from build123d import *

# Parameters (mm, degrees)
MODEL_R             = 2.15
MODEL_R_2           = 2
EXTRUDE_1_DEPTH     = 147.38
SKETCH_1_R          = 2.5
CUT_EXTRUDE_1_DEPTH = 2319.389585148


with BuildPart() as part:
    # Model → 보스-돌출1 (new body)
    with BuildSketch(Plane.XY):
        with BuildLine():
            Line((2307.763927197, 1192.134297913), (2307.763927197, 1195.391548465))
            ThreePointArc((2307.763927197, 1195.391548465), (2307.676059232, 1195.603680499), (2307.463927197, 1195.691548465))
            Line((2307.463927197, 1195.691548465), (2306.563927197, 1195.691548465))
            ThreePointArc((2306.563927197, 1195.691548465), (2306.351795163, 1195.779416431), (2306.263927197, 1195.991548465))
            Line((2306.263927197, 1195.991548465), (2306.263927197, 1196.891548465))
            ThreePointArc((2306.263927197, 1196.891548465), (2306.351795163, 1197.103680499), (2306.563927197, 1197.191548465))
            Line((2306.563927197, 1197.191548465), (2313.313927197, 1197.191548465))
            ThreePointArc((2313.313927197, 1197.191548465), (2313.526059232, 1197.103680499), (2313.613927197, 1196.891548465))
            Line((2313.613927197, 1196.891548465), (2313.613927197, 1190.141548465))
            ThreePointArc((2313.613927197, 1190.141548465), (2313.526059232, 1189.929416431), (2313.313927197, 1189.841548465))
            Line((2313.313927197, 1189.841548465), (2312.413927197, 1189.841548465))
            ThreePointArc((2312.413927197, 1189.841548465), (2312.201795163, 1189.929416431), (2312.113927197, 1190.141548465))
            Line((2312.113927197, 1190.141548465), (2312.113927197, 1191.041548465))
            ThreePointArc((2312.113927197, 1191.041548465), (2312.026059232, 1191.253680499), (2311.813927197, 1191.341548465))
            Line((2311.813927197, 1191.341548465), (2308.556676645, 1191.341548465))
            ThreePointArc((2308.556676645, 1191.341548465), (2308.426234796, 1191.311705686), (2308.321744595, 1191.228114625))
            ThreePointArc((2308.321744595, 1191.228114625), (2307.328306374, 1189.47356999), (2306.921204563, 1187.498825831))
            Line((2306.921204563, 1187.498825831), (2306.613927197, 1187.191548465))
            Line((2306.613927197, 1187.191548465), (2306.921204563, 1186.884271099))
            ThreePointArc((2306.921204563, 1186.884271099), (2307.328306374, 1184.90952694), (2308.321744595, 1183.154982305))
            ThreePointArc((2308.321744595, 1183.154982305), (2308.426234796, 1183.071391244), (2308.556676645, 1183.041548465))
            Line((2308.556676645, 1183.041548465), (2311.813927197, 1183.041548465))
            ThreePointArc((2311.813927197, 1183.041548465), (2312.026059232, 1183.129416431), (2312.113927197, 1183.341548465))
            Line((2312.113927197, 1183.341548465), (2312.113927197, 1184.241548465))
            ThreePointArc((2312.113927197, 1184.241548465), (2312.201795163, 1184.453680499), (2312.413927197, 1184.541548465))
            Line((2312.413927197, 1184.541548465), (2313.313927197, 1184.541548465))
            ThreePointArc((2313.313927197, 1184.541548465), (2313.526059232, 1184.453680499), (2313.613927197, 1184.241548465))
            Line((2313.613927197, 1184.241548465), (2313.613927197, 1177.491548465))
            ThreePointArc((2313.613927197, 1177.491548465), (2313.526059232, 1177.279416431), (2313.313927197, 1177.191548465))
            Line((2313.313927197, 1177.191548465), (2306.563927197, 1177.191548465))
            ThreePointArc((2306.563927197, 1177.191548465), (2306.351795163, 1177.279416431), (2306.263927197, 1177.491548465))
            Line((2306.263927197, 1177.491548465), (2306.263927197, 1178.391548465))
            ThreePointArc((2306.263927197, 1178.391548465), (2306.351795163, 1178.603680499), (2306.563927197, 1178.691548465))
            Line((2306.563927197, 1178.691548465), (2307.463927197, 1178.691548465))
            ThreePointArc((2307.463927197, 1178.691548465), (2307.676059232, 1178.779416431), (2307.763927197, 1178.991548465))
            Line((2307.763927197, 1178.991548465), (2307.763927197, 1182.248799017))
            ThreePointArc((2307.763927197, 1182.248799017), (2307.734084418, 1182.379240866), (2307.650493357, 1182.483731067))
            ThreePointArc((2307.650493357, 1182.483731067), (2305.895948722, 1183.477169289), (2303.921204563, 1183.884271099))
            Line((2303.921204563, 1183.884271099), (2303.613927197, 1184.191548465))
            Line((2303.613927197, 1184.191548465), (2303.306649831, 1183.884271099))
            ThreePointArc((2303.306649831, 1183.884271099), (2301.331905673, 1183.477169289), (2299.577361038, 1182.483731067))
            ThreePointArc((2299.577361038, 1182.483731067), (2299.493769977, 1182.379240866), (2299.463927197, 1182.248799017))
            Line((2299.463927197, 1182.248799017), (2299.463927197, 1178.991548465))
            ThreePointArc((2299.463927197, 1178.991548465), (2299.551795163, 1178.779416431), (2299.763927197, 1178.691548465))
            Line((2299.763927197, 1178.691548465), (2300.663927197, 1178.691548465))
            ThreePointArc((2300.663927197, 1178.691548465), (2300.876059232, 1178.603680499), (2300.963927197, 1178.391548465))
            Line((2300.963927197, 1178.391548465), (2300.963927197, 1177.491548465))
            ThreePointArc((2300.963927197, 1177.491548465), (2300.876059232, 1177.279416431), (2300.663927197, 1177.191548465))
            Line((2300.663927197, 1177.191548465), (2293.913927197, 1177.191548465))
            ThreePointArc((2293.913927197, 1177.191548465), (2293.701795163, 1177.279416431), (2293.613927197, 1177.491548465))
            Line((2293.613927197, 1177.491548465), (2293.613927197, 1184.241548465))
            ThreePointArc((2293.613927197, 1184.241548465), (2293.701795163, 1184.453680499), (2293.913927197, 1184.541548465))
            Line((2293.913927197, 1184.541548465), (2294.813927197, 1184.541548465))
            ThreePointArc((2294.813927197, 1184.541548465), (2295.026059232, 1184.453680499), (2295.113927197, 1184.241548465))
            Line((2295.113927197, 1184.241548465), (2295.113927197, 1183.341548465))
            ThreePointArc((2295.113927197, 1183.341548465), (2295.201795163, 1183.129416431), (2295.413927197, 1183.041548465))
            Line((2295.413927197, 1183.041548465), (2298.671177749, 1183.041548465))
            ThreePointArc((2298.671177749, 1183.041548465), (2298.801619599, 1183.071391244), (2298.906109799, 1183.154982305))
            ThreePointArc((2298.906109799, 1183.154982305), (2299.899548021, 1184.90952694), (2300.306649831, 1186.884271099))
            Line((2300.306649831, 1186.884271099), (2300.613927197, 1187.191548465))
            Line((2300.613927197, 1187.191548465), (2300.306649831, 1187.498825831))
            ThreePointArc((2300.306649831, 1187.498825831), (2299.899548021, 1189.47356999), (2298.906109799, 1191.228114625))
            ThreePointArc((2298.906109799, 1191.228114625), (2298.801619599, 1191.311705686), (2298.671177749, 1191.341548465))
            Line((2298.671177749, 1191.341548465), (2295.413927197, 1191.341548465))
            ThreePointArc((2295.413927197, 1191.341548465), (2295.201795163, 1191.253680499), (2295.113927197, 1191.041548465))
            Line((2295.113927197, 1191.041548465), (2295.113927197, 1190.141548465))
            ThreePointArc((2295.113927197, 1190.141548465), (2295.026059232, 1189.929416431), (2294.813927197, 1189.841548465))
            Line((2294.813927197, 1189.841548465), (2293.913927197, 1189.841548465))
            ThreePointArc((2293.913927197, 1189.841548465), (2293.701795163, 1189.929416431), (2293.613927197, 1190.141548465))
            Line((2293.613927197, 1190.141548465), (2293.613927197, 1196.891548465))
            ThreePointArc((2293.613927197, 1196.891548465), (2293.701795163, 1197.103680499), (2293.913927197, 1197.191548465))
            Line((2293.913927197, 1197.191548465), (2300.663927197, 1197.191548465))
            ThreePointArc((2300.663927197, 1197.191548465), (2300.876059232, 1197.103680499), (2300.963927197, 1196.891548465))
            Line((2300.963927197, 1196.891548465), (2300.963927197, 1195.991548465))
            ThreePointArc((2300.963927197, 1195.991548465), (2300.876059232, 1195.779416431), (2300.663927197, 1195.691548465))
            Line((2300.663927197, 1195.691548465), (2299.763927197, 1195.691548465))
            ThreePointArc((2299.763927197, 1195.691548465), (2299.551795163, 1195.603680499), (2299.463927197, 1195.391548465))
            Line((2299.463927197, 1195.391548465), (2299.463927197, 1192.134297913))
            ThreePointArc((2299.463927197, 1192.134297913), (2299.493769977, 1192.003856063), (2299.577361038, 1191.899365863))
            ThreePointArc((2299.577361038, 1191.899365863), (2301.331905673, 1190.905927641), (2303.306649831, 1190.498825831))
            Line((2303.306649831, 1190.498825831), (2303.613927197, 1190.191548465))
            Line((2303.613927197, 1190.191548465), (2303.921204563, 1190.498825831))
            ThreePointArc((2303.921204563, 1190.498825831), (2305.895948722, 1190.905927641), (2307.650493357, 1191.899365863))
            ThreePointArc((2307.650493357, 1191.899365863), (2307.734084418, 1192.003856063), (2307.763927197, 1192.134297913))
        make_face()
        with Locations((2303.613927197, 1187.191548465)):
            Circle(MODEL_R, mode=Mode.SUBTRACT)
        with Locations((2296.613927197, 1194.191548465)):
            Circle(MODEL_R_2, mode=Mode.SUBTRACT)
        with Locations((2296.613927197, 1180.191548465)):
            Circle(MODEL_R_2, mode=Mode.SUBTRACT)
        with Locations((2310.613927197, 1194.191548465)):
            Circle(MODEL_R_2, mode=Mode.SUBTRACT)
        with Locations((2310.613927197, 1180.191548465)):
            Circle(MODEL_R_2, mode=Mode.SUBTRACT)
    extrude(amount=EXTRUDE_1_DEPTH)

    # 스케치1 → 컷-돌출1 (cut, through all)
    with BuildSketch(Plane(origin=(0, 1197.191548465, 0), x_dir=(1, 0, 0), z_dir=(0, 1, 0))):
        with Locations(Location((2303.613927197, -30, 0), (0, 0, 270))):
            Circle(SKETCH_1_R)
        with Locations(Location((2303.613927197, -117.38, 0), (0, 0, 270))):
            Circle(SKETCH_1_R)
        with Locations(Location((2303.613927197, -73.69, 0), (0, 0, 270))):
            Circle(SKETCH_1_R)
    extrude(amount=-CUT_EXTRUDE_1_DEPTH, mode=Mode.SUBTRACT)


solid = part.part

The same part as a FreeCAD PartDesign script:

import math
import FreeCAD as App
import Part
import Sketcher

V = App.Vector

doc = App.newDocument("Part")
body = doc.addObject("PartDesign::Body", "Body")

sketch1 = body.newObject("Sketcher::SketchObject", "Sketch")
sketch1.AttachmentSupport = (doc.getObject("XY_Plane"), [""])
sketch1.MapMode = "FlatFace"
sketch1.addGeometry(Part.LineSegment(V(2307.763927, 1195.391548, 0), V(2307.763927, 1192.134298, 0)), False)
sketch1.addGeometry(Part.ArcOfCircle(Part.Circle(V(2307.463927, 1192.134298, 0), V(0, 0, 1), 0.3), math.radians(-51.545921), math.radians(0)), False)
sketch1.addGeometry(Part.ArcOfCircle(Part.Circle(V(2303.613927, 1196.982382, 0), V(0, 0, 1), 6.490833), math.radians(-87.286592), math.radians(-51.545921)), False)
sketch1.addGeometry(Part.LineSegment(V(2303.921205, 1190.498826, 0), V(2303.613927, 1190.191548, 0)), False)
sketch1.addGeometry(Part.LineSegment(V(2303.613927, 1190.191548, 0), V(2303.30665, 1190.498826, 0)), False)
sketch1.addGeometry(Part.ArcOfCircle(Part.Circle(V(2303.613927, 1196.982382, 0), V(0, 0, 1), 6.490833), math.radians(-128.454079), math.radians(-92.713408)), False)
sketch1.addGeometry(Part.ArcOfCircle(Part.Circle(V(2299.763927, 1192.134298, 0), V(0, 0, 1), 0.3), math.radians(-180), math.radians(-128.454079)), False)
sketch1.addGeometry(Part.LineSegment(V(2299.463927, 1192.134298, 0), V(2299.463927, 1195.391548, 0)), False)
sketch1.addGeometry(Part.ArcOfCircle(Part.Circle(V(2299.763927, 1195.391548, 0), V(0, 0, 1), 0.3), math.radians(90), math.radians(180)), False)
sketch1.addGeometry(Part.LineSegment(V(2299.763927, 1195.691548, 0), V(2300.663927, 1195.691548, 0)), False)
sketch1.addGeometry(Part.ArcOfCircle(Part.Circle(V(2300.663927, 1195.991548, 0), V(0, 0, 1), 0.3), math.radians(-90), math.radians(0)), False)
sketch1.addGeometry(Part.LineSegment(V(2300.963927, 1195.991548, 0), V(2300.963927, 1196.891548, 0)), False)
sketch1.addGeometry(Part.ArcOfCircle(Part.Circle(V(2300.663927, 1196.891548, 0), V(0, 0, 1), 0.3), math.radians(0), math.radians(90)), False)
sketch1.addGeometry(Part.LineSegment(V(2300.663927, 1197.191548, 0), V(2293.913927, 1197.191548, 0)), False)
sketch1.addGeometry(Part.ArcOfCircle(Part.Circle(V(2293.913927, 1196.891548, 0), V(0, 0, 1), 0.3), math.radians(90), math.radians(180)), False)
sketch1.addGeometry(Part.LineSegment(V(2293.613927, 1196.891548, 0), V(2293.613927, 1190.141548, 0)), False)
sketch1.addGeometry(Part.ArcOfCircle(Part.Circle(V(2293.913927, 1190.141548, 0), V(0, 0, 1), 0.3), math.radians(-180), math.radians(-90)), False)
sketch1.addGeometry(Part.LineSegment(V(2293.913927, 1189.841548, 0), V(2294.813927, 1189.841548, 0)), False)
sketch1.addGeometry(Part.ArcOfCircle(Part.Circle(V(2294.813927, 1190.141548, 0), V(0, 0, 1), 0.3), math.radians(-90), math.radians(0)), False)
sketch1.addGeometry(Part.LineSegment(V(2295.113927, 1190.141548, 0), V(2295.113927, 1191.041548, 0)), False)
sketch1.addGeometry(Part.ArcOfCircle(Part.Circle(V(2295.413927, 1191.041548, 0), V(0, 0, 1), 0.3), math.radians(90), math.radians(180)), False)
sketch1.addGeometry(Part.LineSegment(V(2295.413927, 1191.341548, 0), V(2298.671178, 1191.341548, 0)), False)
sketch1.addGeometry(Part.ArcOfCircle(Part.Circle(V(2298.671178, 1191.041548, 0), V(0, 0, 1), 0.3), math.radians(38.454079), math.radians(90)), False)
sketch1.addGeometry(Part.ArcOfCircle(Part.Circle(V(2293.823094, 1187.191548, 0), V(0, 0, 1), 6.490833), math.radians(2.713408), math.radians(38.454079)), False)
sketch1.addGeometry(Part.LineSegment(V(2300.30665, 1187.498826, 0), V(2300.613927, 1187.191548, 0)), False)
sketch1.addGeometry(Part.LineSegment(V(2300.613927, 1187.191548, 0), V(2300.30665, 1186.884271, 0)), False)
sketch1.addGeometry(Part.ArcOfCircle(Part.Circle(V(2293.823094, 1187.191548, 0), V(0, 0, 1), 6.490833), math.radians(-38.454079), math.radians(-2.713408)), False)
sketch1.addGeometry(Part.ArcOfCircle(Part.Circle(V(2298.671178, 1183.341548, 0), V(0, 0, 1), 0.3), math.radians(-90), math.radians(-38.454079)), False)
sketch1.addGeometry(Part.LineSegment(V(2298.671178, 1183.041548, 0), V(2295.413927, 1183.041548, 0)), False)
sketch1.addGeometry(Part.ArcOfCircle(Part.Circle(V(2295.413927, 1183.341548, 0), V(0, 0, 1), 0.3), math.radians(-180), math.radians(-90)), False)
sketch1.addGeometry(Part.LineSegment(V(2295.113927, 1183.341548, 0), V(2295.113927, 1184.241548, 0)), False)
sketch1.addGeometry(Part.ArcOfCircle(Part.Circle(V(2294.813927, 1184.241548, 0), V(0, 0, 1), 0.3), math.radians(0), math.radians(90)), False)
sketch1.addGeometry(Part.LineSegment(V(2294.813927, 1184.541548, 0), V(2293.913927, 1184.541548, 0)), False)
sketch1.addGeometry(Part.ArcOfCircle(Part.Circle(V(2293.913927, 1184.241548, 0), V(0, 0, 1), 0.3), math.radians(90), math.radians(180)), False)
sketch1.addGeometry(Part.LineSegment(V(2293.613927, 1184.241548, 0), V(2293.613927, 1177.491548, 0)), False)
sketch1.addGeometry(Part.ArcOfCircle(Part.Circle(V(2293.913927, 1177.491548, 0), V(0, 0, 1), 0.3), math.radians(-180), math.radians(-90)), False)
sketch1.addGeometry(Part.LineSegment(V(2293.913927, 1177.191548, 0), V(2300.663927, 1177.191548, 0)), False)
sketch1.addGeometry(Part.ArcOfCircle(Part.Circle(V(2300.663927, 1177.491548, 0), V(0, 0, 1), 0.3), math.radians(-90), math.radians(0)), False)
sketch1.addGeometry(Part.LineSegment(V(2300.963927, 1177.491548, 0), V(2300.963927, 1178.391548, 0)), False)
sketch1.addGeometry(Part.ArcOfCircle(Part.Circle(V(2300.663927, 1178.391548, 0), V(0, 0, 1), 0.3), math.radians(0), math.radians(90)), False)
sketch1.addGeometry(Part.LineSegment(V(2300.663927, 1178.691548, 0), V(2299.763927, 1178.691548, 0)), False)
sketch1.addGeometry(Part.ArcOfCircle(Part.Circle(V(2299.763927, 1178.991548, 0), V(0, 0, 1), 0.3), math.radians(-180), math.radians(-90)), False)
sketch1.addGeometry(Part.LineSegment(V(2299.463927, 1178.991548, 0), V(2299.463927, 1182.248799, 0)), False)
sketch1.addGeometry(Part.ArcOfCircle(Part.Circle(V(2299.763927, 1182.248799, 0), V(0, 0, 1), 0.3), math.radians(128.45408), math.radians(179.999999)), False)
sketch1.addGeometry(Part.ArcOfCircle(Part.Circle(V(2303.613927, 1177.400715, 0), V(0, 0, 1), 6.490833), math.radians(92.713408), math.radians(128.454079)), False)
sketch1.addGeometry(Part.LineSegment(V(2303.30665, 1183.884271, 0), V(2303.613927, 1184.191548, 0)), False)
sketch1.addGeometry(Part.LineSegment(V(2303.613927, 1184.191548, 0), V(2303.921205, 1183.884271, 0)), False)
sketch1.addGeometry(Part.ArcOfCircle(Part.Circle(V(2303.613927, 1177.400715, 0), V(0, 0, 1), 6.490833), math.radians(51.545921), math.radians(87.286592)), False)
sketch1.addGeometry(Part.ArcOfCircle(Part.Circle(V(2307.463927, 1182.248799, 0), V(0, 0, 1), 0.3), math.radians(0), math.radians(51.545921)), False)
sketch1.addGeometry(Part.LineSegment(V(2307.763927, 1182.248799, 0), V(2307.763927, 1178.991548, 0)), False)
sketch1.addGeometry(Part.ArcOfCircle(Part.Circle(V(2307.463927, 1178.991548, 0), V(0, 0, 1), 0.3), math.radians(-90), math.radians(0)), False)
sketch1.addGeometry(Part.LineSegment(V(2307.463927, 1178.691548, 0), V(2306.563927, 1178.691548, 0)), False)
sketch1.addGeometry(Part.ArcOfCircle(Part.Circle(V(2306.563927, 1178.391548, 0), V(0, 0, 1), 0.3), math.radians(90), math.radians(180)), False)
sketch1.addGeometry(Part.LineSegment(V(2306.263927, 1178.391548, 0), V(2306.263927, 1177.491548, 0)), False)
sketch1.addGeometry(Part.ArcOfCircle(Part.Circle(V(2306.563927, 1177.491548, 0), V(0, 0, 1), 0.3), math.radians(-180), math.radians(-90)), False)
sketch1.addGeometry(Part.LineSegment(V(2306.563927, 1177.191548, 0), V(2313.313927, 1177.191548, 0)), False)
sketch1.addGeometry(Part.ArcOfCircle(Part.Circle(V(2313.313927, 1177.491548, 0), V(0, 0, 1), 0.3), math.radians(-90), math.radians(0)), False)
sketch1.addGeometry(Part.LineSegment(V(2313.613927, 1177.491548, 0), V(2313.613927, 1184.241548, 0)), False)
sketch1.addGeometry(Part.ArcOfCircle(Part.Circle(V(2313.313927, 1184.241548, 0), V(0, 0, 1), 0.3), math.radians(0), math.radians(90)), False)
sketch1.addGeometry(Part.LineSegment(V(2313.313927, 1184.541548, 0), V(2312.413927, 1184.541548, 0)), False)
sketch1.addGeometry(Part.ArcOfCircle(Part.Circle(V(2312.413927, 1184.241548, 0), V(0, 0, 1), 0.3), math.radians(90), math.radians(180)), False)
sketch1.addGeometry(Part.LineSegment(V(2312.113927, 1184.241548, 0), V(2312.113927, 1183.341548, 0)), False)
sketch1.addGeometry(Part.ArcOfCircle(Part.Circle(V(2311.813927, 1183.341548, 0), V(0, 0, 1), 0.3), math.radians(-90), math.radians(0)), False)
sketch1.addGeometry(Part.LineSegment(V(2311.813927, 1183.041548, 0), V(2308.556677, 1183.041548, 0)), False)
sketch1.addGeometry(Part.ArcOfCircle(Part.Circle(V(2308.556677, 1183.341548, 0), V(0, 0, 1), 0.3), math.radians(-141.545921), math.radians(-90)), False)
sketch1.addGeometry(Part.ArcOfCircle(Part.Circle(V(2313.404761, 1187.191548, 0), V(0, 0, 1), 6.490833), math.radians(-177.286592), math.radians(-141.545921)), False)
sketch1.addGeometry(Part.LineSegment(V(2306.921205, 1186.884271, 0), V(2306.613927, 1187.191548, 0)), False)
sketch1.addGeometry(Part.LineSegment(V(2306.613927, 1187.191548, 0), V(2306.921205, 1187.498826, 0)), False)
sketch1.addGeometry(Part.ArcOfCircle(Part.Circle(V(2313.404761, 1187.191548, 0), V(0, 0, 1), 6.490833), math.radians(141.545921), math.radians(177.286592)), False)
sketch1.addGeometry(Part.ArcOfCircle(Part.Circle(V(2308.556677, 1191.041548, 0), V(0, 0, 1), 0.3), math.radians(90), math.radians(141.545921)), False)
sketch1.addGeometry(Part.LineSegment(V(2308.556677, 1191.341548, 0), V(2311.813927, 1191.341548, 0)), False)
sketch1.addGeometry(Part.ArcOfCircle(Part.Circle(V(2311.813927, 1191.041548, 0), V(0, 0, 1), 0.3), math.radians(0), math.radians(90)), False)
sketch1.addGeometry(Part.LineSegment(V(2312.113927, 1191.041548, 0), V(2312.113927, 1190.141548, 0)), False)
sketch1.addGeometry(Part.ArcOfCircle(Part.Circle(V(2312.413927, 1190.141548, 0), V(0, 0, 1), 0.3), math.radians(-180), math.radians(-90)), False)
sketch1.addGeometry(Part.LineSegment(V(2312.413927, 1189.841548, 0), V(2313.313927, 1189.841548, 0)), False)
sketch1.addGeometry(Part.ArcOfCircle(Part.Circle(V(2313.313927, 1190.141548, 0), V(0, 0, 1), 0.3), math.radians(-90), math.radians(0)), False)
sketch1.addGeometry(Part.LineSegment(V(2313.613927, 1190.141548, 0), V(2313.613927, 1196.891548, 0)), False)
sketch1.addGeometry(Part.ArcOfCircle(Part.Circle(V(2313.313927, 1196.891548, 0), V(0, 0, 1), 0.3), math.radians(0), math.radians(90)), False)
sketch1.addGeometry(Part.LineSegment(V(2313.313927, 1197.191548, 0), V(2306.563927, 1197.191548, 0)), False)
sketch1.addGeometry(Part.ArcOfCircle(Part.Circle(V(2306.563927, 1196.891548, 0), V(0, 0, 1), 0.3), math.radians(90), math.radians(180)), False)
sketch1.addGeometry(Part.LineSegment(V(2306.263927, 1196.891548, 0), V(2306.263927, 1195.991548, 0)), False)
sketch1.addGeometry(Part.ArcOfCircle(Part.Circle(V(2306.563927, 1195.991548, 0), V(0, 0, 1), 0.3), math.radians(-180), math.radians(-90)), False)
sketch1.addGeometry(Part.LineSegment(V(2306.563927, 1195.691548, 0), V(2307.463927, 1195.691548, 0)), False)
sketch1.addGeometry(Part.ArcOfCircle(Part.Circle(V(2307.463927, 1195.391548, 0), V(0, 0, 1), 0.3), math.radians(0), math.radians(90)), False)
sketch1.addGeometry(Part.Circle(V(2310.613927, 1180.191548, 0), V(0, 0, 1), 2), False)
sketch1.addGeometry(Part.Circle(V(2296.613927, 1180.191548, 0), V(0, 0, 1), 2), False)
sketch1.addGeometry(Part.Circle(V(2310.613927, 1194.191548, 0), V(0, 0, 1), 2), False)
sketch1.addGeometry(Part.Circle(V(2303.613927, 1187.191548, 0), V(0, 0, 1), 2.15), False)
sketch1.addGeometry(Part.Circle(V(2296.613927, 1194.191548, 0), V(0, 0, 1), 2), False)
sketch1.addConstraint(Sketcher.Constraint("Tangent", 0, 2, 1, 2))
sketch1.addConstraint(Sketcher.Constraint("Tangent", 1, 1, 2, 2))
sketch1.addConstraint(Sketcher.Constraint("Coincident", 2, 1, 3, 1))
sketch1.addConstraint(Sketcher.Constraint("Coincident", 3, 2, 4, 1))
sketch1.addConstraint(Sketcher.Constraint("Coincident", 4, 2, 5, 2))
sketch1.addConstraint(Sketcher.Constraint("Tangent", 5, 1, 6, 2))
sketch1.addConstraint(Sketcher.Constraint("Tangent", 6, 1, 7, 1))
sketch1.addConstraint(Sketcher.Constraint("Tangent", 7, 2, 8, 2))
sketch1.addConstraint(Sketcher.Constraint("Tangent", 8, 1, 9, 1))
sketch1.addConstraint(Sketcher.Constraint("Tangent", 9, 2, 10, 1))
sketch1.addConstraint(Sketcher.Constraint("Tangent", 10, 2, 11, 1))
sketch1.addConstraint(Sketcher.Constraint("Tangent", 11, 2, 12, 1))
sketch1.addConstraint(Sketcher.Constraint("Tangent", 12, 2, 13, 1))
sketch1.addConstraint(Sketcher.Constraint("Tangent", 13, 2, 14, 1))
sketch1.addConstraint(Sketcher.Constraint("Tangent", 14, 2, 15, 1))
sketch1.addConstraint(Sketcher.Constraint("Tangent", 15, 2, 16, 1))
sketch1.addConstraint(Sketcher.Constraint("Tangent", 16, 2, 17, 1))
sketch1.addConstraint(Sketcher.Constraint("Tangent", 17, 2, 18, 1))
sketch1.addConstraint(Sketcher.Constraint("Tangent", 18, 2, 19, 1))
sketch1.addConstraint(Sketcher.Constraint("Tangent", 19, 2, 20, 2))
sketch1.addConstraint(Sketcher.Constraint("Tangent", 20, 1, 21, 1))
sketch1.addConstraint(Sketcher.Constraint("Tangent", 21, 2, 22, 2))
sketch1.addConstraint(Sketcher.Constraint("Tangent", 22, 1, 23, 2))
sketch1.addConstraint(Sketcher.Constraint("Coincident", 23, 1, 24, 1))
sketch1.addConstraint(Sketcher.Constraint("Coincident", 24, 2, 25, 1))
sketch1.addConstraint(Sketcher.Constraint("Coincident", 25, 2, 26, 2))
sketch1.addConstraint(Sketcher.Constraint("Tangent", 26, 1, 27, 2))
sketch1.addConstraint(Sketcher.Constraint("Tangent", 27, 1, 28, 1))
sketch1.addConstraint(Sketcher.Constraint("Tangent", 28, 2, 29, 2))
sketch1.addConstraint(Sketcher.Constraint("Tangent", 29, 1, 30, 1))
sketch1.addConstraint(Sketcher.Constraint("Tangent", 30, 2, 31, 1))
sketch1.addConstraint(Sketcher.Constraint("Tangent", 31, 2, 32, 1))
sketch1.addConstraint(Sketcher.Constraint("Tangent", 32, 2, 33, 1))
sketch1.addConstraint(Sketcher.Constraint("Tangent", 33, 2, 34, 1))
sketch1.addConstraint(Sketcher.Constraint("Tangent", 34, 2, 35, 1))
sketch1.addConstraint(Sketcher.Constraint("Tangent", 35, 2, 36, 1))
sketch1.addConstraint(Sketcher.Constraint("Tangent", 36, 2, 37, 1))
sketch1.addConstraint(Sketcher.Constraint("Tangent", 37, 2, 38, 1))
sketch1.addConstraint(Sketcher.Constraint("Tangent", 38, 2, 39, 1))
sketch1.addConstraint(Sketcher.Constraint("Tangent", 39, 2, 40, 1))
sketch1.addConstraint(Sketcher.Constraint("Tangent", 40, 2, 41, 2))
sketch1.addConstraint(Sketcher.Constraint("Tangent", 41, 1, 42, 1))
sketch1.addConstraint(Sketcher.Constraint("Tangent", 42, 2, 43, 2))
sketch1.addConstraint(Sketcher.Constraint("Tangent", 43, 1, 44, 2))
sketch1.addConstraint(Sketcher.Constraint("Coincident", 44, 1, 45, 1))
sketch1.addConstraint(Sketcher.Constraint("Coincident", 45, 2, 46, 1))
sketch1.addConstraint(Sketcher.Constraint("Coincident", 46, 2, 47, 2))
sketch1.addConstraint(Sketcher.Constraint("Tangent", 47, 1, 48, 2))
sketch1.addConstraint(Sketcher.Constraint("Tangent", 48, 1, 49, 1))
sketch1.addConstraint(Sketcher.Constraint("Tangent", 49, 2, 50, 2))
sketch1.addConstraint(Sketcher.Constraint("Tangent", 50, 1, 51, 1))
sketch1.addConstraint(Sketcher.Constraint("Tangent", 51, 2, 52, 1))
sketch1.addConstraint(Sketcher.Constraint("Tangent", 52, 2, 53, 1))
sketch1.addConstraint(Sketcher.Constraint("Tangent", 53, 2, 54, 1))
sketch1.addConstraint(Sketcher.Constraint("Tangent", 54, 2, 55, 1))
sketch1.addConstraint(Sketcher.Constraint("Tangent", 55, 2, 56, 1))
sketch1.addConstraint(Sketcher.Constraint("Tangent", 56, 2, 57, 1))
sketch1.addConstraint(Sketcher.Constraint("Tangent", 57, 2, 58, 1))
sketch1.addConstraint(Sketcher.Constraint("Tangent", 58, 2, 59, 1))
sketch1.addConstraint(Sketcher.Constraint("Tangent", 59, 2, 60, 1))
sketch1.addConstraint(Sketcher.Constraint("Tangent", 60, 2, 61, 1))
sketch1.addConstraint(Sketcher.Constraint("Tangent", 61, 2, 62, 2))
sketch1.addConstraint(Sketcher.Constraint("Tangent", 62, 1, 63, 1))
sketch1.addConstraint(Sketcher.Constraint("Tangent", 63, 2, 64, 2))
sketch1.addConstraint(Sketcher.Constraint("Tangent", 64, 1, 65, 2))
sketch1.addConstraint(Sketcher.Constraint("Coincident", 65, 1, 66, 1))
sketch1.addConstraint(Sketcher.Constraint("Coincident", 66, 2, 67, 1))
sketch1.addConstraint(Sketcher.Constraint("Coincident", 67, 2, 68, 2))
sketch1.addConstraint(Sketcher.Constraint("Tangent", 68, 1, 69, 2))
sketch1.addConstraint(Sketcher.Constraint("Tangent", 69, 1, 70, 1))
sketch1.addConstraint(Sketcher.Constraint("Tangent", 70, 2, 71, 2))
sketch1.addConstraint(Sketcher.Constraint("Tangent", 71, 1, 72, 1))
sketch1.addConstraint(Sketcher.Constraint("Tangent", 72, 2, 73, 1))
sketch1.addConstraint(Sketcher.Constraint("Tangent", 73, 2, 74, 1))
sketch1.addConstraint(Sketcher.Constraint("Tangent", 74, 2, 75, 1))
sketch1.addConstraint(Sketcher.Constraint("Tangent", 75, 2, 76, 1))
sketch1.addConstraint(Sketcher.Constraint("Tangent", 76, 2, 77, 1))
sketch1.addConstraint(Sketcher.Constraint("Tangent", 77, 2, 78, 1))
sketch1.addConstraint(Sketcher.Constraint("Tangent", 78, 2, 79, 1))
sketch1.addConstraint(Sketcher.Constraint("Tangent", 79, 2, 80, 1))
sketch1.addConstraint(Sketcher.Constraint("Tangent", 80, 2, 81, 1))
sketch1.addConstraint(Sketcher.Constraint("Tangent", 81, 2, 82, 1))
sketch1.addConstraint(Sketcher.Constraint("Tangent", 82, 2, 83, 2))
sketch1.addConstraint(Sketcher.Constraint("Tangent", 83, 1, 0, 1))
sketch1.addConstraint(Sketcher.Constraint("Vertical", 0))
sketch1.addConstraint(Sketcher.Constraint("Vertical", 7))
sketch1.addConstraint(Sketcher.Constraint("Horizontal", 9))
sketch1.addConstraint(Sketcher.Constraint("Vertical", 11))
sketch1.addConstraint(Sketcher.Constraint("Horizontal", 13))
sketch1.addConstraint(Sketcher.Constraint("Vertical", 15))
sketch1.addConstraint(Sketcher.Constraint("Horizontal", 17))
sketch1.addConstraint(Sketcher.Constraint("Vertical", 19))
sketch1.addConstraint(Sketcher.Constraint("Horizontal", 21))
sketch1.addConstraint(Sketcher.Constraint("Horizontal", 28))
sketch1.addConstraint(Sketcher.Constraint("Vertical", 30))
sketch1.addConstraint(Sketcher.Constraint("Horizontal", 32))
sketch1.addConstraint(Sketcher.Constraint("Vertical", 34))
sketch1.addConstraint(Sketcher.Constraint("Horizontal", 36))
sketch1.addConstraint(Sketcher.Constraint("Vertical", 38))
sketch1.addConstraint(Sketcher.Constraint("Horizontal", 40))
sketch1.addConstraint(Sketcher.Constraint("Vertical", 42))
sketch1.addConstraint(Sketcher.Constraint("Vertical", 49))
sketch1.addConstraint(Sketcher.Constraint("Horizontal", 51))
sketch1.addConstraint(Sketcher.Constraint("Vertical", 53))
sketch1.addConstraint(Sketcher.Constraint("Horizontal", 55))
sketch1.addConstraint(Sketcher.Constraint("Vertical", 57))
sketch1.addConstraint(Sketcher.Constraint("Horizontal", 59))
sketch1.addConstraint(Sketcher.Constraint("Vertical", 61))
sketch1.addConstraint(Sketcher.Constraint("Horizontal", 63))
sketch1.addConstraint(Sketcher.Constraint("Horizontal", 70))
sketch1.addConstraint(Sketcher.Constraint("Vertical", 72))
sketch1.addConstraint(Sketcher.Constraint("Horizontal", 74))
sketch1.addConstraint(Sketcher.Constraint("Vertical", 76))
sketch1.addConstraint(Sketcher.Constraint("Horizontal", 78))
sketch1.addConstraint(Sketcher.Constraint("Vertical", 80))
sketch1.addConstraint(Sketcher.Constraint("Horizontal", 82))
sketch1.addConstraint(Sketcher.Constraint("Coincident", 5, 3, 2, 3))
sketch1.addConstraint(Sketcher.Constraint("Coincident", 26, 3, 23, 3))
sketch1.addConstraint(Sketcher.Constraint("Coincident", 47, 3, 44, 3))
sketch1.addConstraint(Sketcher.Constraint("Coincident", 68, 3, 65, 3))
sketch1.addConstraint(Sketcher.Constraint("Equal", 2, 5))
sketch1.addConstraint(Sketcher.Constraint("Equal", 1, 6))
sketch1.addConstraint(Sketcher.Constraint("Equal", 6, 8))
sketch1.addConstraint(Sketcher.Constraint("Equal", 8, 10))
sketch1.addConstraint(Sketcher.Constraint("Equal", 10, 12))
sketch1.addConstraint(Sketcher.Constraint("Equal", 12, 14))
sketch1.addConstraint(Sketcher.Constraint("Equal", 14, 16))
sketch1.addConstraint(Sketcher.Constraint("Equal", 16, 18))
sketch1.addConstraint(Sketcher.Constraint("Equal", 18, 20))
sketch1.addConstraint(Sketcher.Constraint("Equal", 20, 22))
sketch1.addConstraint(Sketcher.Constraint("Equal", 5, 23))
sketch1.addConstraint(Sketcher.Constraint("Equal", 23, 26))
sketch1.addConstraint(Sketcher.Constraint("Equal", 22, 27))
sketch1.addConstraint(Sketcher.Constraint("Equal", 27, 29))
sketch1.addConstraint(Sketcher.Constraint("Equal", 29, 31))
sketch1.addConstraint(Sketcher.Constraint("Equal", 31, 33))
sketch1.addConstraint(Sketcher.Constraint("Equal", 33, 35))
sketch1.addConstraint(Sketcher.Constraint("Equal", 35, 37))
sketch1.addConstraint(Sketcher.Constraint("Equal", 37, 39))
sketch1.addConstraint(Sketcher.Constraint("Equal", 39, 41))
sketch1.addConstraint(Sketcher.Constraint("Equal", 41, 43))
sketch1.addConstraint(Sketcher.Constraint("Equal", 26, 44))
sketch1.addConstraint(Sketcher.Constraint("Equal", 44, 47))
sketch1.addConstraint(Sketcher.Constraint("Equal", 43, 48))
sketch1.addConstraint(Sketcher.Constraint("Equal", 48, 50))
sketch1.addConstraint(Sketcher.Constraint("Equal", 50, 52))
sketch1.addConstraint(Sketcher.Constraint("Equal", 52, 54))
sketch1.addConstraint(Sketcher.Constraint("Equal", 54, 56))
sketch1.addConstraint(Sketcher.Constraint("Equal", 56, 58))
sketch1.addConstraint(Sketcher.Constraint("Equal", 58, 60))
sketch1.addConstraint(Sketcher.Constraint("Equal", 60, 62))
sketch1.addConstraint(Sketcher.Constraint("Equal", 62, 64))
sketch1.addConstraint(Sketcher.Constraint("Equal", 47, 65))
sketch1.addConstraint(Sketcher.Constraint("Equal", 65, 68))
sketch1.addConstraint(Sketcher.Constraint("Equal", 64, 69))
sketch1.addConstraint(Sketcher.Constraint("Equal", 69, 71))
sketch1.addConstraint(Sketcher.Constraint("Equal", 71, 73))
sketch1.addConstraint(Sketcher.Constraint("Equal", 73, 75))
sketch1.addConstraint(Sketcher.Constraint("Equal", 75, 77))
sketch1.addConstraint(Sketcher.Constraint("Equal", 77, 79))
sketch1.addConstraint(Sketcher.Constraint("Equal", 79, 81))
sketch1.addConstraint(Sketcher.Constraint("Equal", 81, 83))
sketch1.addConstraint(Sketcher.Constraint("Equal", 84, 85))
sketch1.addConstraint(Sketcher.Constraint("Equal", 85, 86))
sketch1.addConstraint(Sketcher.Constraint("Equal", 86, 88))
sketch1.addConstraint(Sketcher.Constraint("Perpendicular", 3, 4))
sketch1.addConstraint(Sketcher.Constraint("Parallel", 4, 24))
sketch1.addConstraint(Sketcher.Constraint("Perpendicular", 24, 25))
sketch1.addConstraint(Sketcher.Constraint("Parallel", 25, 45))
sketch1.addConstraint(Sketcher.Constraint("Perpendicular", 45, 46))
sketch1.addConstraint(Sketcher.Constraint("Parallel", 46, 66))
sketch1.addConstraint(Sketcher.Constraint("Perpendicular", 66, 67))
sketch1.addConstraint(Sketcher.Constraint("Horizontal", 1, 3, 6, 3))
sketch1.addConstraint(Sketcher.Constraint("Horizontal", 43, 3, 48, 3))
sketch1.addConstraint(Sketcher.Constraint("Horizontal", 41, 3, 50, 3))
sketch1.addConstraint(Sketcher.Constraint("Horizontal", 37, 3, 54, 3))
sketch1.addConstraint(Sketcher.Constraint("Horizontal", 33, 3, 58, 3))
sketch1.addConstraint(Sketcher.Constraint("Horizontal", 29, 3, 62, 3))
sketch1.addConstraint(Sketcher.Constraint("Horizontal", 26, 3, 65, 3))
sketch1.addConstraint(Sketcher.Constraint("Horizontal", 22, 3, 69, 3))
sketch1.addConstraint(Sketcher.Constraint("Horizontal", 18, 3, 73, 3))
sketch1.addConstraint(Sketcher.Constraint("Horizontal", 14, 3, 77, 3))
sketch1.addConstraint(Sketcher.Constraint("Horizontal", 10, 3, 81, 3))
sketch1.addConstraint(Sketcher.Constraint("Horizontal", 84, 3, 85, 3))
sketch1.addConstraint(Sketcher.Constraint("Horizontal", 68, 3, 87, 3))
sketch1.addConstraint(Sketcher.Constraint("Horizontal", 86, 3, 88, 3))
sketch1.addConstraint(Sketcher.Constraint("Horizontal", 2, 1, 4, 2))
sketch1.addConstraint(Sketcher.Constraint("Horizontal", 87, 3, 24, 2))
sketch1.addConstraint(Sketcher.Constraint("Horizontal", 44, 1, 46, 2))
sketch1.addConstraint(Sketcher.Constraint("Horizontal", 25, 2, 65, 1))
sketch1.addConstraint(Sketcher.Constraint("Horizontal", 24, 2, 66, 2))
sketch1.addConstraint(Sketcher.Constraint("Horizontal", 23, 1, 67, 2))
sketch1.addConstraint(Sketcher.Constraint("Vertical", 22, 3, 27, 3))
sketch1.addConstraint(Sketcher.Constraint("Vertical", 20, 3, 29, 3))
sketch1.addConstraint(Sketcher.Constraint("Vertical", 16, 3, 33, 3))
sketch1.addConstraint(Sketcher.Constraint("Vertical", 12, 3, 37, 3))
sketch1.addConstraint(Sketcher.Constraint("Vertical", 8, 3, 41, 3))
sketch1.addConstraint(Sketcher.Constraint("Vertical", 5, 3, 44, 3))
sketch1.addConstraint(Sketcher.Constraint("Vertical", 62, 3, 71, 3))
sketch1.addConstraint(Sketcher.Constraint("Vertical", 58, 3, 75, 3))
sketch1.addConstraint(Sketcher.Constraint("Vertical", 54, 3, 79, 3))
sketch1.addConstraint(Sketcher.Constraint("Vertical", 84, 3, 86, 3))
sketch1.addConstraint(Sketcher.Constraint("Vertical", 47, 3, 87, 3))
sketch1.addConstraint(Sketcher.Constraint("Vertical", 85, 3, 88, 3))
sketch1.addConstraint(Sketcher.Constraint("Vertical", 4, 2, 44, 1))
sketch1.addConstraint(Sketcher.Constraint("Equal", 9, 17))
sketch1.addConstraint(Sketcher.Constraint("Equal", 40, 51))
sketch1.addConstraint(Sketcher.Constraint("Equal", 36, 55))
sketch1.addConstraint(Sketcher.Constraint("Equal", 51, 59))
sketch1.addConstraint(Sketcher.Constraint("Equal", 28, 63))
sketch1.addConstraint(Sketcher.Constraint("Equal", 70, 0))
sketch1.addConstraint(Sketcher.Constraint("Equal", 82, 11))
sketch1.addConstraint(Sketcher.Constraint("Equal", 78, 15))
sketch1.addConstraint(Sketcher.Constraint("Equal", 11, 19))
sketch1.addConstraint(Sketcher.Constraint("Equal", 19, 30))
sketch1.addConstraint(Sketcher.Constraint("Equal", 15, 34))
sketch1.addConstraint(Sketcher.Constraint("Equal", 30, 38))
sketch1.addConstraint(Sketcher.Constraint("Equal", 7, 42))
sketch1.addConstraint(Sketcher.Constraint("Equal", 4, 24))
sketch1.addConstraint(Sketcher.Constraint("Diameter", 84, 4.0))
sketch1.addConstraint(Sketcher.Constraint("Diameter", 87, 4.3))
sketch1.addConstraint(Sketcher.Constraint("Radius", 1, 0.3))
sketch1.addConstraint(Sketcher.Constraint("DistanceX", 9, 1, 9, 2, 0.9))
sketch1.addConstraint(Sketcher.Constraint("DistanceX", 13, 2, 13, 1, 6.75))
sketch1.addConstraint(Sketcher.Constraint("Radius", 2, 6.490833))
sketch1.addConstraint(Sketcher.Constraint("DistanceX", 21, 1, 21, 2, 3.257251))
sketch1.addConstraint(Sketcher.Constraint("DistanceY", -1, 1, 43, 3, 1182.248799))
sketch1.addConstraint(Sketcher.Constraint("DistanceY", -1, 1, 2, 3, 1196.982382))
sketch1.addConstraint(Sketcher.Constraint("DistanceY", -1, 1, 8, 3, 1195.391548))
sketch1.addConstraint(Sketcher.Constraint("DistanceX", -1, 1, 65, 3, 2313.404761))
sketch1.addConstraint(Sketcher.Constraint("DistanceY", -1, 1, 84, 3, 1180.191548))
sketch1.addConstraint(Sketcher.Constraint("DistanceY", -1, 1, 86, 3, 1194.191548))
sketch1.addConstraint(Sketcher.Constraint("DistanceY", -1, 1, 3, 2, 1190.191548))
sketch1.addConstraint(Sketcher.Constraint("DistanceX", -1, 1, 84, 3, 2310.613927))
sketch1.addConstraint(Sketcher.Constraint("DistanceX", -1, 1, 85, 3, 2296.613927))
pad1 = body.newObject("PartDesign::Pad", "Pad")
pad1.Profile = sketch1
pad1.Length = 147.38

sketch2 = body.newObject("Sketcher::SketchObject", "Sketch001")
sketch2.AttachmentSupport = (doc.getObject("XZ_Plane"), [""])
sketch2.MapMode = "FlatFace"
sketch2.AttachmentOffset = App.Placement(V(0, 0, -1197.191548), App.Rotation())
sketch2.addGeometry(Part.Circle(V(2303.613927, 30, 0), V(0, 0, 1), 2.5), False)
sketch2.addGeometry(Part.Circle(V(2303.613927, 117.38, 0), V(0, 0, 1), 2.5), False)
sketch2.addGeometry(Part.Circle(V(2303.613927, 73.69, 0), V(0, 0, 1), 2.5), False)
sketch2.addConstraint(Sketcher.Constraint("Equal", 0, 1))
sketch2.addConstraint(Sketcher.Constraint("Equal", 1, 2))
sketch2.addConstraint(Sketcher.Constraint("Vertical", 0, 3, 1, 3))
sketch2.addConstraint(Sketcher.Constraint("Vertical", 1, 3, 2, 3))
sketch2.addConstraint(Sketcher.Constraint("Diameter", 0, 5.0))
sketch2.addConstraint(Sketcher.Constraint("DistanceY", -1, 1, 0, 3, 30.0))
sketch2.addConstraint(Sketcher.Constraint("DistanceY", -1, 1, 1, 3, 117.38))
sketch2.addConstraint(Sketcher.Constraint("DistanceY", -1, 1, 2, 3, 73.69))
sketch2.addConstraint(Sketcher.Constraint("DistanceX", -1, 1, 0, 3, 2303.613927))
pocket1 = body.newObject("PartDesign::Pocket", "Pocket")
pocket1.Profile = sketch2
pocket1.Type = "ThroughAll"
pocket1.Reversed = True

doc.recompute()
